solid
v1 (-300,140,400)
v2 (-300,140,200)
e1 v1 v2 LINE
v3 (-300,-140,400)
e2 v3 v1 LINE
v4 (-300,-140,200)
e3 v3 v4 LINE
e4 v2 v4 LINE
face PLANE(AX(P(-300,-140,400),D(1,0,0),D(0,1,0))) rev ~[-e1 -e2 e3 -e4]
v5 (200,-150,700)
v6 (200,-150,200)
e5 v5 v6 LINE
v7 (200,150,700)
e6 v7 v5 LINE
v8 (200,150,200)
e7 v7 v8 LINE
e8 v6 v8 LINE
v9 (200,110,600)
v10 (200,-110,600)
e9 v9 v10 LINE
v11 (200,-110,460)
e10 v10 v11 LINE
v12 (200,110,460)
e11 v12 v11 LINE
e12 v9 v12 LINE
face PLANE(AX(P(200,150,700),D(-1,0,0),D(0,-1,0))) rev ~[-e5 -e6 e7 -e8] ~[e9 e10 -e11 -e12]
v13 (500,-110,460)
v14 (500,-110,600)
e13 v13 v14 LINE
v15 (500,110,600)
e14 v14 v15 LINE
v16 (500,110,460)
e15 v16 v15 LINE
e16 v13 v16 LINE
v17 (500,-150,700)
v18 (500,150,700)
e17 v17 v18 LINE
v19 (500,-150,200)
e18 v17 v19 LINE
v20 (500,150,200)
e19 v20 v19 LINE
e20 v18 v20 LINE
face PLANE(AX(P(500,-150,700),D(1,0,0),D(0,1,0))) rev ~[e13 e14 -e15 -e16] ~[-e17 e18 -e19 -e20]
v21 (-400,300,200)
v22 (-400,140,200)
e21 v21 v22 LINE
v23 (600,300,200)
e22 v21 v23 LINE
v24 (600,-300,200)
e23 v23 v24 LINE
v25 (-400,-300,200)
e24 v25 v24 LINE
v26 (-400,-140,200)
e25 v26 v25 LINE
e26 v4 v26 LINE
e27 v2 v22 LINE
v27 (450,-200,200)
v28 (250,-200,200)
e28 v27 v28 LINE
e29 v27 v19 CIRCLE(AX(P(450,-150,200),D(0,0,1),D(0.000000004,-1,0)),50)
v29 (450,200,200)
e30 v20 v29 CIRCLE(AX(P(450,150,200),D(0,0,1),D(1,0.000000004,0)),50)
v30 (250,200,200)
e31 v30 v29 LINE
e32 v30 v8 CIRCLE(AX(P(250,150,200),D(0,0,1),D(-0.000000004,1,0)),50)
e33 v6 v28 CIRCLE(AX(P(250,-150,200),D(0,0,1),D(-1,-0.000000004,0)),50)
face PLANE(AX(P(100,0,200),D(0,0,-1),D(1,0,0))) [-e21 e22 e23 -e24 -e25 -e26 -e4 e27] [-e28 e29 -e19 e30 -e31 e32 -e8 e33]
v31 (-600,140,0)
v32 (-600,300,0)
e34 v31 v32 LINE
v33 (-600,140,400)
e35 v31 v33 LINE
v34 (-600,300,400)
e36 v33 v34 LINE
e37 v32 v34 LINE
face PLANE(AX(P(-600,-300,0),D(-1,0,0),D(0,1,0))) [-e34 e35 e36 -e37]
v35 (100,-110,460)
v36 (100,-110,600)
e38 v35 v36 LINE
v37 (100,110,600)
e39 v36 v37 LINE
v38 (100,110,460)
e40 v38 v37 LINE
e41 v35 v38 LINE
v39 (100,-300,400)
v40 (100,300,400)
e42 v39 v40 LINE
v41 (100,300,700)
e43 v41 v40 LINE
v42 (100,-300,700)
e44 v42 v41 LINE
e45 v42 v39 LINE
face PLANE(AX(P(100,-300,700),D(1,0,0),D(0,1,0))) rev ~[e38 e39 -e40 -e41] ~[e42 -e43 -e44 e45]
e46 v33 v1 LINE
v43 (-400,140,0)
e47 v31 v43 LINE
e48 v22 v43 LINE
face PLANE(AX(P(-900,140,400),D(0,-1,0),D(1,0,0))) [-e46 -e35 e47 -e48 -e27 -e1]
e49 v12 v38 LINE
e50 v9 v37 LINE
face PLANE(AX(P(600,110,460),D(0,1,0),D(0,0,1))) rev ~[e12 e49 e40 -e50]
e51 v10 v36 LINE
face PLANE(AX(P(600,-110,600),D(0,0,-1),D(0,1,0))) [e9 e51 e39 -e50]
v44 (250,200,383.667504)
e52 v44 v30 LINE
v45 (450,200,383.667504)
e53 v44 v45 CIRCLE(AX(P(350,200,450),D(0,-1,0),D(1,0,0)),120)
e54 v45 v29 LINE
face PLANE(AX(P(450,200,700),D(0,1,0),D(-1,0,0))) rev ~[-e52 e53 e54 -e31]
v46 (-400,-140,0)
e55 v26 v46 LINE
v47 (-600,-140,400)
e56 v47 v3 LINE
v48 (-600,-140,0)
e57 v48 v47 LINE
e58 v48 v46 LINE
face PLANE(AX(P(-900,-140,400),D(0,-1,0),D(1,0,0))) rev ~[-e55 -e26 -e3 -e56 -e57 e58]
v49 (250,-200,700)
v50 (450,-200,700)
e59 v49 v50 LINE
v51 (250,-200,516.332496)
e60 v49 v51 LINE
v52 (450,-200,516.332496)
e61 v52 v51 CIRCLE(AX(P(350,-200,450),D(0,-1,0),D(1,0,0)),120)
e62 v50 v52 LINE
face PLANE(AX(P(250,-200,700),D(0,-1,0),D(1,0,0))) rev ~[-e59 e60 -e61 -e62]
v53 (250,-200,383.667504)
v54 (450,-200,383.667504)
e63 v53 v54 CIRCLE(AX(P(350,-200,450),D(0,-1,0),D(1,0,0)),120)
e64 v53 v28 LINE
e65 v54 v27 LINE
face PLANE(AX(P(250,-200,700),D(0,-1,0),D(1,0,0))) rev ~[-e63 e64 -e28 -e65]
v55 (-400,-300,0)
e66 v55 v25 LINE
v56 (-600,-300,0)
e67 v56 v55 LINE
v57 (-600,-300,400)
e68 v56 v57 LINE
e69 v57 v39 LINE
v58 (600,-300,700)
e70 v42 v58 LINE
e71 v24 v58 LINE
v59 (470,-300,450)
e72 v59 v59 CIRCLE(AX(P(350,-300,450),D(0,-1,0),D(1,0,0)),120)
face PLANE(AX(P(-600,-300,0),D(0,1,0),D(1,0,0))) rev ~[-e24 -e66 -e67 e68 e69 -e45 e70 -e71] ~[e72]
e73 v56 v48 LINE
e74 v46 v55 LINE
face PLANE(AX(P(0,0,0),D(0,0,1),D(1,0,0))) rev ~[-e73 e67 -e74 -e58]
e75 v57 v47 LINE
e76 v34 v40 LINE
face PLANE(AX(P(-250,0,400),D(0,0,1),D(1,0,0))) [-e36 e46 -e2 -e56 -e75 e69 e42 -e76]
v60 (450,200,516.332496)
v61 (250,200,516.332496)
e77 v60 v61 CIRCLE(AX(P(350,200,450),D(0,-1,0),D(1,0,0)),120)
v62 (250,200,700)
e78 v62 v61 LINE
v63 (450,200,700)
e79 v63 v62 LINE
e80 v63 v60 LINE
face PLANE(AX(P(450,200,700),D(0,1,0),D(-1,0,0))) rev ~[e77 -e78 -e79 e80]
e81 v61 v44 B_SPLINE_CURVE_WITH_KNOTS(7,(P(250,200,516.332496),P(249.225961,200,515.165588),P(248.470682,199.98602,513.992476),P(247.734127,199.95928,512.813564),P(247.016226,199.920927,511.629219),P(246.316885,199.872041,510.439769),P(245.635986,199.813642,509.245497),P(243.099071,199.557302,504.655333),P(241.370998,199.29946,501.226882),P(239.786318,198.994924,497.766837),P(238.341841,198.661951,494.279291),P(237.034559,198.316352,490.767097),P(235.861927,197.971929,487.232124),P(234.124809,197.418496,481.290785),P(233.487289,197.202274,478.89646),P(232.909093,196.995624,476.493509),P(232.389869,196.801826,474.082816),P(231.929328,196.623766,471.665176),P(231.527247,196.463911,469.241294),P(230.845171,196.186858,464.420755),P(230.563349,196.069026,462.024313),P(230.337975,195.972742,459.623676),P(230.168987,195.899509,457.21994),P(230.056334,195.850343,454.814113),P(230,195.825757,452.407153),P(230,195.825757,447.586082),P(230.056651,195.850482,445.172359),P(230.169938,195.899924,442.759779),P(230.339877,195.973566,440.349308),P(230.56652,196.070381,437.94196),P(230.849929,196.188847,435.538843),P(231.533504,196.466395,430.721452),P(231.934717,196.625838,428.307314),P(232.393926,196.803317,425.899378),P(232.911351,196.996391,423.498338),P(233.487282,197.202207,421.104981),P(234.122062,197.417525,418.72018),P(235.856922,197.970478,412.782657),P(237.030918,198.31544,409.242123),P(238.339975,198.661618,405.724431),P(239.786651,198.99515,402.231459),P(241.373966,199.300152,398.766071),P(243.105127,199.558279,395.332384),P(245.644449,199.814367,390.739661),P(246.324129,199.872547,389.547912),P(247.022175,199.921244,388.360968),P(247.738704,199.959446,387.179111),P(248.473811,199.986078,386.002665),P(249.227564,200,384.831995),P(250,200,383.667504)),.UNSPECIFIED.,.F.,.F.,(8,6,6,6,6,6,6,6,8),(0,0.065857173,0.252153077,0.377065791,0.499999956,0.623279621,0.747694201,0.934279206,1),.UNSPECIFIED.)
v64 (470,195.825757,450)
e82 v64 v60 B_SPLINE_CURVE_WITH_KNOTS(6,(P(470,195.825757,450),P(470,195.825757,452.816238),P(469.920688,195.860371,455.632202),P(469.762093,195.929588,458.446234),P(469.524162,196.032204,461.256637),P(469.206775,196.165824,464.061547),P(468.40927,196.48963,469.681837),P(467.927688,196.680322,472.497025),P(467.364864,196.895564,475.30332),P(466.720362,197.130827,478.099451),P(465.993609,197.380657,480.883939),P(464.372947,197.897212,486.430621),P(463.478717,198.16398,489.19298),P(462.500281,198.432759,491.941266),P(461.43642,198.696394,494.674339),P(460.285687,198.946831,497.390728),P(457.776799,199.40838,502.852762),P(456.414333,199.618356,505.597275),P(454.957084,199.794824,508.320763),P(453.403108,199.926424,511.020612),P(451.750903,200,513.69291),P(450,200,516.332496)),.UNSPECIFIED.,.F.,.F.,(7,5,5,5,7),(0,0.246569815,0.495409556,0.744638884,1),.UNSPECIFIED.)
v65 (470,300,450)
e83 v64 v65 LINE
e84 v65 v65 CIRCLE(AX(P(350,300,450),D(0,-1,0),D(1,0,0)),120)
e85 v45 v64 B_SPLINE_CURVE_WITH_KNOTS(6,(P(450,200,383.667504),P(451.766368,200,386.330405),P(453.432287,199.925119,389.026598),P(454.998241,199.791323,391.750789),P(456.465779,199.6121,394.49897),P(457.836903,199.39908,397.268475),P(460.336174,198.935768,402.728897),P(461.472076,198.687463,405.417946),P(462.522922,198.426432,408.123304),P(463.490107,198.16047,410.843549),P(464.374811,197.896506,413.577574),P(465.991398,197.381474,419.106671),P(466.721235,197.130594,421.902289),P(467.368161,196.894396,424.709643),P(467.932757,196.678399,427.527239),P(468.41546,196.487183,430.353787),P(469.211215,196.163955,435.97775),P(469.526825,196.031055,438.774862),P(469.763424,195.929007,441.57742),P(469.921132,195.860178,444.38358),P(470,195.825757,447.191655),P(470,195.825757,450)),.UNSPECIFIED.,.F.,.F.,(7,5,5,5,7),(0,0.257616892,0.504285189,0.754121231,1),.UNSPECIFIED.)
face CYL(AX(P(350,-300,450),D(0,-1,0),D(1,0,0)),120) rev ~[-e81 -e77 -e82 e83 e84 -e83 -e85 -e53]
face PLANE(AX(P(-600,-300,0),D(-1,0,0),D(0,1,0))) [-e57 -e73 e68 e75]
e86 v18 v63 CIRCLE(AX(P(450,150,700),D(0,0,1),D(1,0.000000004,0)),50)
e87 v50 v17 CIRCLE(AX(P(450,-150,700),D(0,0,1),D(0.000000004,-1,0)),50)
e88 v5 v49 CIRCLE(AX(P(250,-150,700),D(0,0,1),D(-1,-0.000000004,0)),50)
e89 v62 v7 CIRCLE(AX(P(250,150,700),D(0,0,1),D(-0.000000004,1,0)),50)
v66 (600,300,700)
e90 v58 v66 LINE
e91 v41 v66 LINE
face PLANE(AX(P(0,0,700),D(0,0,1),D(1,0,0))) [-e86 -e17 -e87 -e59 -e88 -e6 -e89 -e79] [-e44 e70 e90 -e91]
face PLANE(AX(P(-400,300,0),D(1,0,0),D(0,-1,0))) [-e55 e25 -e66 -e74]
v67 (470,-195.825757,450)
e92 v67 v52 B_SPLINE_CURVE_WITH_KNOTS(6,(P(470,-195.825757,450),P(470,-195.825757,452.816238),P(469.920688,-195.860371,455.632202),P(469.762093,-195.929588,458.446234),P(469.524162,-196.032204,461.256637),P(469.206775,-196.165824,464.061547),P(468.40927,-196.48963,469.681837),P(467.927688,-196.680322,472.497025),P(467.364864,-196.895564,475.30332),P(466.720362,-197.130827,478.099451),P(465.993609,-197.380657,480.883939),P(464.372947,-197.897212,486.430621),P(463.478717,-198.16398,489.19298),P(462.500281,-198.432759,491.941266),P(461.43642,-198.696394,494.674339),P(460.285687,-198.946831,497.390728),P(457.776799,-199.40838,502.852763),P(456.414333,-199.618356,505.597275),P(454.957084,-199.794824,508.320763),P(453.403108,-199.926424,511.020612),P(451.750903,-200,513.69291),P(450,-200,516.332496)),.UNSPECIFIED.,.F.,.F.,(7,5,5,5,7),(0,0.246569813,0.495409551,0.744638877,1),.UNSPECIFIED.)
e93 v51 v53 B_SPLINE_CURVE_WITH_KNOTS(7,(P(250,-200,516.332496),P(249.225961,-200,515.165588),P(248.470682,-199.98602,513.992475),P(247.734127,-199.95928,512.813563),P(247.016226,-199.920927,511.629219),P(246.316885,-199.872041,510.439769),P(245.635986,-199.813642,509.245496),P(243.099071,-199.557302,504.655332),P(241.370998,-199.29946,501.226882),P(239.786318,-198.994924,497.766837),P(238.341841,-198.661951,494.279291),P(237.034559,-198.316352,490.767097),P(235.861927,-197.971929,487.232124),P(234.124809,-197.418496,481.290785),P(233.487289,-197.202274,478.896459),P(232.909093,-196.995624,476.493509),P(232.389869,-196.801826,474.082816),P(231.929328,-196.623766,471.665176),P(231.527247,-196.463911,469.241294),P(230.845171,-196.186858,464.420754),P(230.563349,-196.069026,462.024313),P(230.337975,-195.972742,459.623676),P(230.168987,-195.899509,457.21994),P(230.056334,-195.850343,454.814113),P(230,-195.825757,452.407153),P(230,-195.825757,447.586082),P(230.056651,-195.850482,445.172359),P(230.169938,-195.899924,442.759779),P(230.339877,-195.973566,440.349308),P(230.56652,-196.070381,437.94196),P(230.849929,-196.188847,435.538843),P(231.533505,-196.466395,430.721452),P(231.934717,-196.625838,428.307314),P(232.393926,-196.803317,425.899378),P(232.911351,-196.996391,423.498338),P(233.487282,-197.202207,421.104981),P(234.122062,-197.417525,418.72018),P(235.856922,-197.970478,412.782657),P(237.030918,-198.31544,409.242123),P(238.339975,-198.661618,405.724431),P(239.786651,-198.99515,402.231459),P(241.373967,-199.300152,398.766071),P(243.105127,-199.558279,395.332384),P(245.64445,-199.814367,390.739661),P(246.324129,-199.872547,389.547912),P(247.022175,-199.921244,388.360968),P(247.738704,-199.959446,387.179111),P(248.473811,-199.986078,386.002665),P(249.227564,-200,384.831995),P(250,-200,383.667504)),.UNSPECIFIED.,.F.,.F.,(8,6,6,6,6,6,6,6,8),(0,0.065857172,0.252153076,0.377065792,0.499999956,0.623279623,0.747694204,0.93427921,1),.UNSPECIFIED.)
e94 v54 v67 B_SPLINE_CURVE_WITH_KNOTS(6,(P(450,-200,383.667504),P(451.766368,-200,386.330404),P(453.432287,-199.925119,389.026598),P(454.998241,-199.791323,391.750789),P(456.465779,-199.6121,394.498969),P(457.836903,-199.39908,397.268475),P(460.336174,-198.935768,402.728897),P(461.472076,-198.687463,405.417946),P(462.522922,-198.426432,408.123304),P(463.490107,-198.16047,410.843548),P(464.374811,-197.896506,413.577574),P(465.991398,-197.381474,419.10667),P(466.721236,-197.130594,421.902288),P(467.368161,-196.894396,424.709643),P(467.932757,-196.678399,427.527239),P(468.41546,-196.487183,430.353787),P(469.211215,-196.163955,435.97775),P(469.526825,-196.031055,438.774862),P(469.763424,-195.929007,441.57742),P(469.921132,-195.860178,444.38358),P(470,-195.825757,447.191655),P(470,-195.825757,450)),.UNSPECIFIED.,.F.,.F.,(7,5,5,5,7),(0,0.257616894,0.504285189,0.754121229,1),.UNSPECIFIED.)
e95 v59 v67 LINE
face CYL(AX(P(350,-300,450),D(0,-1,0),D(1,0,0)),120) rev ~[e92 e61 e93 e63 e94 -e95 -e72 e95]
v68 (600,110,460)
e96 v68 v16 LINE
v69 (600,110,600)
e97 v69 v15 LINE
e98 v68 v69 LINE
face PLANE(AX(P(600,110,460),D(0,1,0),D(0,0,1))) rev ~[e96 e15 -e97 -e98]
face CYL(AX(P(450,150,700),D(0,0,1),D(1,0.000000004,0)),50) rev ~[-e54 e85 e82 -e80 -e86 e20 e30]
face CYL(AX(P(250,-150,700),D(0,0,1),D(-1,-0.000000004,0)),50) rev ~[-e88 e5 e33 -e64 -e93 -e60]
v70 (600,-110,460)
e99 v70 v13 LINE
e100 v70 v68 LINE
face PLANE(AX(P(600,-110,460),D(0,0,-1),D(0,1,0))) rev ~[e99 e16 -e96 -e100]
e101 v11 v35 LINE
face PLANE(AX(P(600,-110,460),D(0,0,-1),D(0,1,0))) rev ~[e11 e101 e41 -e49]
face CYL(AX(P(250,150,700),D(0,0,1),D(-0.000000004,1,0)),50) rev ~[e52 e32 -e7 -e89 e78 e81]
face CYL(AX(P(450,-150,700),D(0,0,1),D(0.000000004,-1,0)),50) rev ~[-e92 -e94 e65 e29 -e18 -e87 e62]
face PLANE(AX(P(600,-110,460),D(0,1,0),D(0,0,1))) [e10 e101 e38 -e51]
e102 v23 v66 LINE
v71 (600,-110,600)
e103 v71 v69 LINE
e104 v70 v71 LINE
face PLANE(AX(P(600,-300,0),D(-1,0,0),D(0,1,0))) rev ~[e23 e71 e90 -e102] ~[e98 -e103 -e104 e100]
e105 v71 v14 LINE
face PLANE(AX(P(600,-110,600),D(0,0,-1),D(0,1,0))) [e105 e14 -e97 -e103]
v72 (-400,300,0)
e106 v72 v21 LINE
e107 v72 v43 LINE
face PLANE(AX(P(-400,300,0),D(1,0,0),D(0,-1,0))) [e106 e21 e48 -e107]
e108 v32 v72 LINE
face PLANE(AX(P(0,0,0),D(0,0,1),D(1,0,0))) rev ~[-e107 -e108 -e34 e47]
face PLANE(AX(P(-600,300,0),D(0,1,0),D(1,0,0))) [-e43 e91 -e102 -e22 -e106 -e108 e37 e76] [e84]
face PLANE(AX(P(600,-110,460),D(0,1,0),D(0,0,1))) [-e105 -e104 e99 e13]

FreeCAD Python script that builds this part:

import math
import FreeCAD as App
import Part
import Sketcher

V = App.Vector


def add_polygon(sketch, points):
    """Adds a closed chain of lines whose ends are joined by coincident constraints."""
    first, n = sketch.GeometryCount, len(points)
    for a, b in zip(points, points[1:] + points[:1]):
        sketch.addGeometry(Part.LineSegment(App.Vector(*a, 0), App.Vector(*b, 0)), False)
    for i in range(n):
        sketch.addConstraint(Sketcher.Constraint("Coincident", first + i, 2, first + (i + 1) % n, 1))

doc = App.newDocument("Part")
params = doc.addObject("Spreadsheet::Sheet", "Params")
for row, (alias, value) in enumerate([
    ("sketch1_width", "1200 mm"),
    ("sketch1_height", "600 mm"),
    ("pad1_length", "700 mm"),
    ("sketch2_width", "700 mm"),
    ("sketch2_height", "600 mm"),
    ("pocket1_length", "300 mm"),
    ("sketch3_width", "1000 mm"),
    ("sketch3_height", "600 mm"),
    ("pocket2_length", "200 mm"),
    ("sketch4_width", "600 mm"),
    ("sketch4_height", "280 mm"),
    ("sketch5_radius", "50 mm"),
    ("sketch5_width", "200 mm"),
    ("sketch5_height", "300 mm"),
    ("sketch6_width", "220 mm"),
    ("sketch6_height", "140 mm"),
    ("sketch7_diameter", "240 mm"),
], start=1):
    params.set(f"A{row}", alias)
    params.set(f"B{row}", "=" + value)
    params.setAlias(f"B{row}", alias)

body = doc.addObject("PartDesign::Body", "Body")

sketch1 = body.newObject("Sketcher::SketchObject", "Sketch")
sketch1.AttachmentSupport = (doc.getObject("XY_Plane"), [""])
sketch1.MapMode = "FlatFace"
add_polygon(sketch1, [(-600, 300), (-600, -300), (600, -300), (600, 300)])
sketch1.addConstraint([
    Sketcher.Constraint("Vertical", 0),
    Sketcher.Constraint("Horizontal", 1),
    Sketcher.Constraint("Vertical", 2),
    Sketcher.Constraint("Horizontal", 3),
    Sketcher.Constraint("Symmetric", 0, 2, 2, 2, -1, 1),
    Sketcher.Constraint("DistanceX", 1, 1, 1, 2, 1200.0),
    Sketcher.Constraint("DistanceY", 0, 2, 0, 1, 600.0),
])
sketch1.setExpression("Constraints[9]", "Params.sketch1_width")
sketch1.setExpression("Constraints[10]", "Params.sketch1_height")
pad1 = body.newObject("PartDesign::Pad", "Pad")
pad1.Profile = sketch1
pad1.setExpression("Length", "Params.pad1_length")

sketch2 = body.newObject("Sketcher::SketchObject", "Sketch001")
sketch2.AttachmentSupport = (doc.getObject("XY_Plane"), [""])
sketch2.MapMode = "FlatFace"
sketch2.AttachmentOffset = App.Placement(V(0, 0, 700), App.Rotation())
add_polygon(sketch2, [(-600, 300), (-600, -300), (100, -300), (100, 300)])
sketch2.addConstraint([
    Sketcher.Constraint("Vertical", 0),
    Sketcher.Constraint("Horizontal", 1),
    Sketcher.Constraint("Vertical", 2),
    Sketcher.Constraint("Horizontal", 3),
    Sketcher.Constraint("DistanceX", 1, 1, 1, 2, 700.0),
    Sketcher.Constraint("DistanceY", 0, 2, 0, 1, 600.0),
    Sketcher.Constraint("DistanceX", 0, 2, -1, 1, 600.0),
    Sketcher.Constraint("DistanceY", 0, 2, -1, 1, 300.0),
])
sketch2.setExpression("Constraints[8]", "Params.sketch2_width")
sketch2.setExpression("Constraints[9]", "Params.sketch2_height")
pocket1 = body.newObject("PartDesign::Pocket", "Pocket")
pocket1.Profile = sketch2
pocket1.setExpression("Length", "Params.pocket1_length")

sketch3 = body.newObject("Sketcher::SketchObject", "Sketch002")
sketch3.AttachmentSupport = (doc.getObject("XY_Plane"), [""])
sketch3.MapMode = "FlatFace"
add_polygon(sketch3, [(-400, -300), (-400, 300), (600, 300), (600, -300)])
sketch3.addConstraint([
    Sketcher.Constraint("Vertical", 0),
    Sketcher.Constraint("Horizontal", 1),
    Sketcher.Constraint("Vertical", 2),
    Sketcher.Constraint("Horizontal", 3),
    Sketcher.Constraint("DistanceX", 1, 1, 1, 2, 1000.0),
    Sketcher.Constraint("DistanceY", 0, 1, 0, 2, 600.0),
    Sketcher.Constraint("DistanceX", 0, 2, -1, 1, 400.0),
    Sketcher.Constraint("DistanceY", -1, 1, 0, 2, 300.0),
])
sketch3.setExpression("Constraints[8]", "Params.sketch3_width")
sketch3.setExpression("Constraints[9]", "Params.sketch3_height")
pocket2 = body.newObject("PartDesign::Pocket", "Pocket001")
pocket2.Profile = sketch3
pocket2.setExpression("Length", "Params.pocket2_length")
pocket2.Reversed = True

sketch4 = body.newObject("Sketcher::SketchObject", "Sketch003")
sketch4.AttachmentSupport = (doc.getObject("XY_Plane"), [""])
sketch4.MapMode = "FlatFace"
sketch4.AttachmentOffset = App.Placement(V(0, 0, 400), App.Rotation())
add_polygon(sketch4, [(-900, 140), (-900, -140), (-300, -140), (-300, 140)])
sketch4.addConstraint([
    Sketcher.Constraint("Vertical", 0),
    Sketcher.Constraint("Horizontal", 1),
    Sketcher.Constraint("Vertical", 2),
    Sketcher.Constraint("Horizontal", 3),
    Sketcher.Constraint("DistanceX", 1, 1, 1, 2, 600.0),
    Sketcher.Constraint("DistanceY", 0, 2, 0, 1, 280.0),
    Sketcher.Constraint("DistanceX", 0, 2, -1, 1, 900.0),
    Sketcher.Constraint("DistanceY", 0, 2, -1, 1, 140.0),
])
sketch4.setExpression("Constraints[8]", "Params.sketch4_width")
sketch4.setExpression("Constraints[9]", "Params.sketch4_height")
pocket3 = body.newObject("PartDesign::Pocket", "Pocket002")
pocket3.Profile = sketch4
pocket3.Type = "ThroughAll"

sketch5 = body.newObject("Sketcher::SketchObject", "Sketch004")
sketch5.AttachmentSupport = (doc.getObject("XY_Plane"), [""])
sketch5.MapMode = "FlatFace"
sketch5.AttachmentOffset = App.Placement(V(0, 0, 700), App.Rotation())
sketch5.addGeometry([
    Part.ArcOfCircle(Part.Circle(V(450, 150, 0), V(0, 0, 1), 50), math.radians(0), math.radians(90)),
    Part.LineSegment(V(450, 200, 0), V(250, 200, 0)),
    Part.ArcOfCircle(Part.Circle(V(250, 150, 0), V(0, 0, 1), 50), math.radians(90), math.radians(180)),
    Part.LineSegment(V(200, 150, 0), V(200, -150, 0)),
    Part.ArcOfCircle(Part.Circle(V(250, -150, 0), V(0, 0, 1), 50), math.radians(-180), math.radians(-90)),
    Part.LineSegment(V(250, -200, 0), V(450, -200, 0)),
    Part.ArcOfCircle(Part.Circle(V(450, -150, 0), V(0, 0, 1), 50), math.radians(-90), math.radians(0)),
    Part.LineSegment(V(500, -150, 0), V(500, 150, 0)),
], False)
sketch5.addConstraint([
    Sketcher.Constraint("Tangent", 0, 2, 1, 1),
    Sketcher.Constraint("Tangent", 1, 2, 2, 1),
    Sketcher.Constraint("Tangent", 2, 2, 3, 1),
    Sketcher.Constraint("Tangent", 3, 2, 4, 1),
    Sketcher.Constraint("Tangent", 4, 2, 5, 1),
    Sketcher.Constraint("Tangent", 5, 2, 6, 1),
    Sketcher.Constraint("Tangent", 6, 2, 7, 1),
    Sketcher.Constraint("Tangent", 7, 2, 0, 1),
    Sketcher.Constraint("Horizontal", 1),
    Sketcher.Constraint("Vertical", 3),
    Sketcher.Constraint("Horizontal", 5),
    Sketcher.Constraint("Vertical", 7),
    Sketcher.Constraint("Equal", 0, 2),
    Sketcher.Constraint("Equal", 2, 4),
    Sketcher.Constraint("Equal", 4, 6),
    Sketcher.Constraint("Radius", 0, 50.0),
    Sketcher.Constraint("DistanceX", 1, 2, 1, 1, 200.0),
    Sketcher.Constraint("DistanceY", 3, 2, 3, 1, 300.0),
    Sketcher.Constraint("DistanceX", -1, 1, 0, 3, 450.0),
    Sketcher.Constraint("DistanceY", -1, 1, 0, 3, 150.0),
])
sketch5.setExpression("Constraints[15]", "Params.sketch5_radius")
sketch5.setExpression("Constraints[16]", "Params.sketch5_width")
sketch5.setExpression("Constraints[17]", "Params.sketch5_height")
pocket4 = body.newObject("PartDesign::Pocket", "Pocket003")
pocket4.Profile = sketch5
pocket4.Type = "ThroughAll"

sketch6 = body.newObject("Sketcher::SketchObject", "Sketch005")
sketch6.AttachmentSupport = (doc.getObject("YZ_Plane"), [""])
sketch6.MapMode = "FlatFace"
sketch6.AttachmentOffset = App.Placement(V(0, 0, 600), App.Rotation())
add_polygon(sketch6, [(-110, 600), (-110, 460), (110, 460), (110, 600)])
sketch6.addConstraint([
    Sketcher.Constraint("Vertical", 0),
    Sketcher.Constraint("Horizontal", 1),
    Sketcher.Constraint("Vertical", 2),
    Sketcher.Constraint("Horizontal", 3),
    Sketcher.Constraint("DistanceX", 1, 1, 1, 2, 220.0),
    Sketcher.Constraint("DistanceY", 0, 2, 0, 1, 140.0),
    Sketcher.Constraint("DistanceX", 0, 2, -1, 1, 110.0),
    Sketcher.Constraint("DistanceY", -1, 1, 0, 2, 460.0),
])
sketch6.setExpression("Constraints[8]", "Params.sketch6_width")
sketch6.setExpression("Constraints[9]", "Params.sketch6_height")
pocket5 = body.newObject("PartDesign::Pocket", "Pocket004")
pocket5.Profile = sketch6
pocket5.Type = "ThroughAll"

sketch7 = body.newObject("Sketcher::SketchObject", "Sketch006")
sketch7.AttachmentSupport = (doc.getObject("XZ_Plane"), [""])
sketch7.MapMode = "FlatFace"
sketch7.AttachmentOffset = App.Placement(V(0, 0, 300), App.Rotation())
sketch7.addGeometry(Part.Circle(V(350, 450, 0), V(0, 0, 1), 120), False)
sketch7.addConstraint([
    Sketcher.Constraint("Diameter", 0, 240.0),
    Sketcher.Constraint("DistanceX", -1, 1, 0, 3, 350.0),
    Sketcher.Constraint("DistanceY", -1, 1, 0, 3, 450.0),
])
sketch7.setExpression("Constraints[0]", "Params.sketch7_diameter")
pocket6 = body.newObject("PartDesign::Pocket", "Pocket005")
pocket6.Profile = sketch7
pocket6.Type = "ThroughAll"

doc.recompute()
